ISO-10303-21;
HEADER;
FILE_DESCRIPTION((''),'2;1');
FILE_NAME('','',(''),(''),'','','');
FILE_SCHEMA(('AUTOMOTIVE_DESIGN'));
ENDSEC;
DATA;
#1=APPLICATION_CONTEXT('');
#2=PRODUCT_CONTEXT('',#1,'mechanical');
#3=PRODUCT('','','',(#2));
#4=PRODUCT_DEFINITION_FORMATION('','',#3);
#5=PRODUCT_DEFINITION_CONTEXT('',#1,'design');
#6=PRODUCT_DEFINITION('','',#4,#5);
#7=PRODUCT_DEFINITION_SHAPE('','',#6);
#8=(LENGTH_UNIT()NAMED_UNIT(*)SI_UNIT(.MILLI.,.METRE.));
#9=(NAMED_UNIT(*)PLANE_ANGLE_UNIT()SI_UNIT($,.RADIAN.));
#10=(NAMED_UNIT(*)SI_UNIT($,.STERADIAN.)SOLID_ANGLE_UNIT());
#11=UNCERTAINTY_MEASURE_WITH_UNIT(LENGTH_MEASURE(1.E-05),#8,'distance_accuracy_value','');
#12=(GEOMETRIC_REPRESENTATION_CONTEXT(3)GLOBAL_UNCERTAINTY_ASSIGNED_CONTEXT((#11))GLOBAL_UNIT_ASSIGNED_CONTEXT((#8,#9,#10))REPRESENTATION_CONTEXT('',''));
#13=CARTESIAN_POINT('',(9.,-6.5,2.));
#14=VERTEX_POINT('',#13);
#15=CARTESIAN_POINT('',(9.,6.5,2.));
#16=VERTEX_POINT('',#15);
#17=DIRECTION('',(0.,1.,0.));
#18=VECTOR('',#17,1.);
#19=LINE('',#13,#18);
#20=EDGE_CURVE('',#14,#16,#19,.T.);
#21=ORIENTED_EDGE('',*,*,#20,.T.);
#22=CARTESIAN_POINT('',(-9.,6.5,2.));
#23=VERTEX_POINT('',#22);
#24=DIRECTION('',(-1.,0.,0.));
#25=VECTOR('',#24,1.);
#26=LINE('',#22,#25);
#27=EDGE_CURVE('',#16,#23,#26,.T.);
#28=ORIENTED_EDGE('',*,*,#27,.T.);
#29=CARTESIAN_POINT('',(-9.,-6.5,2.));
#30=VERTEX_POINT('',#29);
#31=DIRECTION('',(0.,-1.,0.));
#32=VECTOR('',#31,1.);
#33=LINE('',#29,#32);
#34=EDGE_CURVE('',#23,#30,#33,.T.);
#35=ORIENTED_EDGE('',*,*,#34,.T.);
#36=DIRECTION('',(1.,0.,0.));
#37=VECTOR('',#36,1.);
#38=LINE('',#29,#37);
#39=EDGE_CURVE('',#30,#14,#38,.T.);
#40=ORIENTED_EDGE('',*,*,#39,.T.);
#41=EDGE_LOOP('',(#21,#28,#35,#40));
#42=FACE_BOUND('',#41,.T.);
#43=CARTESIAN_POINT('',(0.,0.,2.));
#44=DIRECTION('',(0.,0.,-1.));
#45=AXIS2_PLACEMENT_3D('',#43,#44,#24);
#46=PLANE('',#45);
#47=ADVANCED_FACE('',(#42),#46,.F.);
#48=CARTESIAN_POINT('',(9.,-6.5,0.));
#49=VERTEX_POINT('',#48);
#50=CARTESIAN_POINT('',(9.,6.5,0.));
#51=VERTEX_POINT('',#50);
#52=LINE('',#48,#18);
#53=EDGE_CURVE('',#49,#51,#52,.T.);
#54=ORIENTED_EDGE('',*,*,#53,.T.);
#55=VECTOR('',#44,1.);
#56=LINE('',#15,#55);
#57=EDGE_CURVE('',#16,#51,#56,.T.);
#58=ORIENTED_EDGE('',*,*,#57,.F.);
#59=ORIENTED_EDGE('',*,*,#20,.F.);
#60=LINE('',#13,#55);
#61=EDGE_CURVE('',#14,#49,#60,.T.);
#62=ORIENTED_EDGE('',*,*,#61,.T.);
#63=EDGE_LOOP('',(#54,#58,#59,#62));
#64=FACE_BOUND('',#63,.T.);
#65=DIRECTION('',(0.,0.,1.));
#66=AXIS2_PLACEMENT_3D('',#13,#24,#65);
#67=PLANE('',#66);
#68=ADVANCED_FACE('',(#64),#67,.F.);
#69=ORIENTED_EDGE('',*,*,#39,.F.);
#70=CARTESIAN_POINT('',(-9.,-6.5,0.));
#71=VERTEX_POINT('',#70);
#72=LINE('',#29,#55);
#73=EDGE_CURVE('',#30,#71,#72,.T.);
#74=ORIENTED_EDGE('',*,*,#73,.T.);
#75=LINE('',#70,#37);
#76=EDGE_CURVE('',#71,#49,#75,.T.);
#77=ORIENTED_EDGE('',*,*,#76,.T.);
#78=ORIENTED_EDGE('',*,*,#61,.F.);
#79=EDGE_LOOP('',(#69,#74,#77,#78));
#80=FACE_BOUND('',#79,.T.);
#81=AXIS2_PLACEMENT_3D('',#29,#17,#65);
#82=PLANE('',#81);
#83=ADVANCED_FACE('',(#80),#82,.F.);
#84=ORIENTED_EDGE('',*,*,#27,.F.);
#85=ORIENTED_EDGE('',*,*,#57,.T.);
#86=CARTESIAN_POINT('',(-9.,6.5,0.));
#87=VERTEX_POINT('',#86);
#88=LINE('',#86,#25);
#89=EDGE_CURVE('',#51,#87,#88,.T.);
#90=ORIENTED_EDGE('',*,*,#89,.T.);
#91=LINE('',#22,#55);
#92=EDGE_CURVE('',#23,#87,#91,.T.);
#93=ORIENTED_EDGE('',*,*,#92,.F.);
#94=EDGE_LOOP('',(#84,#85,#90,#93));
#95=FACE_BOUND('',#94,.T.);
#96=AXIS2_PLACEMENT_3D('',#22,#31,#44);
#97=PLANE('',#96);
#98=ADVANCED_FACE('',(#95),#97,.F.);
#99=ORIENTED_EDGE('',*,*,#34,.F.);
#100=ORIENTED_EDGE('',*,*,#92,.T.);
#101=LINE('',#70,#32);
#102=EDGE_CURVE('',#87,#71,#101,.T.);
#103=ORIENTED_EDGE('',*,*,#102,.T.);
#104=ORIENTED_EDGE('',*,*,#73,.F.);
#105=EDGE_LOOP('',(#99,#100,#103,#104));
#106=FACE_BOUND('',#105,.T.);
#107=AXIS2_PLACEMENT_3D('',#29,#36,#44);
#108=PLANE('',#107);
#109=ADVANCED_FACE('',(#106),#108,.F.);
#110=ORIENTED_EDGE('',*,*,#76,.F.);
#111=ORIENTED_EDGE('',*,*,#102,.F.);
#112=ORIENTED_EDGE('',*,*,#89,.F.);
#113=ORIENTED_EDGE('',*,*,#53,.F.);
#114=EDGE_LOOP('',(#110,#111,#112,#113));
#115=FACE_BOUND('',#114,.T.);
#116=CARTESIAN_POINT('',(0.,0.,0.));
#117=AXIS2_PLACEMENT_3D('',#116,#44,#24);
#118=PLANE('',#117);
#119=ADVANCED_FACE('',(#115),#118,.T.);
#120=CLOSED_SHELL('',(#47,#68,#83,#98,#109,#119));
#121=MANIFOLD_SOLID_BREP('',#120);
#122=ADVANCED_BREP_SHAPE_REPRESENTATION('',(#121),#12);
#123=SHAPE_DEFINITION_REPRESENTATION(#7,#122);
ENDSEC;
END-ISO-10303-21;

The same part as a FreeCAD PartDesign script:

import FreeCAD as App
import Part
import Sketcher

V = App.Vector

doc = App.newDocument("Part")
params = doc.addObject("Spreadsheet::Sheet", "Params")
for row, (alias, value) in enumerate([
    ("sketch1_width", "18 mm"),
    ("sketch1_height", "13 mm"),
    ("pad1_length", "2 mm"),
], start=1):
    params.set(f"A{row}", alias)
    params.set(f"B{row}", "=" + value)
    params.setAlias(f"B{row}", alias)

body = doc.addObject("PartDesign::Body", "Body")

sketch1 = body.newObject("Sketcher::SketchObject", "Sketch")
sketch1.AttachmentSupport = (doc.getObject("XY_Plane"), [""])
sketch1.MapMode = "FlatFace"
sketch1.addGeometry(Part.LineSegment(V(-9, 6, 0), V(-9, -6, 0)), False)
sketch1.addGeometry(Part.LineSegment(V(-9, -6, 0), V(9, -6, 0)), False)
sketch1.addGeometry(Part.LineSegment(V(9, -6, 0), V(9, 6, 0)), False)
sketch1.addGeometry(Part.LineSegment(V(9, 6, 0), V(-9, 6, 0)), False)
sketch1.addConstraint(Sketcher.Constraint("Coincident", 0, 2, 1, 1))
sketch1.addConstraint(Sketcher.Constraint("Coincident", 1, 2, 2, 1))
sketch1.addConstraint(Sketcher.Constraint("Coincident", 2, 2, 3, 1))
sketch1.addConstraint(Sketcher.Constraint("Coincident", 3, 2, 0, 1))
sketch1.addConstraint(Sketcher.Constraint("Vertical", 0))
sketch1.addConstraint(Sketcher.Constraint("Horizontal", 1))
sketch1.addConstraint(Sketcher.Constraint("Vertical", 2))
sketch1.addConstraint(Sketcher.Constraint("Horizontal", 3))
sketch1.addConstraint(Sketcher.Constraint("Symmetric", 0, 2, 2, 2, -1, 1))
sketch1.addConstraint(Sketcher.Constraint("DistanceX", 1, 1, 1, 2, 18.0))
sketch1.addConstraint(Sketcher.Constraint("DistanceY", 0, 2, 0, 1, 13.0))
sketch1.setExpression("Constraints[9]", "Params.sketch1_width")
sketch1.setExpression("Constraints[10]", "Params.sketch1_height")
pad1 = body.newObject("PartDesign::Pad", "Pad")
pad1.Profile = sketch1
pad1.setExpression("Length", "Params.pad1_length")

doc.recompute()
